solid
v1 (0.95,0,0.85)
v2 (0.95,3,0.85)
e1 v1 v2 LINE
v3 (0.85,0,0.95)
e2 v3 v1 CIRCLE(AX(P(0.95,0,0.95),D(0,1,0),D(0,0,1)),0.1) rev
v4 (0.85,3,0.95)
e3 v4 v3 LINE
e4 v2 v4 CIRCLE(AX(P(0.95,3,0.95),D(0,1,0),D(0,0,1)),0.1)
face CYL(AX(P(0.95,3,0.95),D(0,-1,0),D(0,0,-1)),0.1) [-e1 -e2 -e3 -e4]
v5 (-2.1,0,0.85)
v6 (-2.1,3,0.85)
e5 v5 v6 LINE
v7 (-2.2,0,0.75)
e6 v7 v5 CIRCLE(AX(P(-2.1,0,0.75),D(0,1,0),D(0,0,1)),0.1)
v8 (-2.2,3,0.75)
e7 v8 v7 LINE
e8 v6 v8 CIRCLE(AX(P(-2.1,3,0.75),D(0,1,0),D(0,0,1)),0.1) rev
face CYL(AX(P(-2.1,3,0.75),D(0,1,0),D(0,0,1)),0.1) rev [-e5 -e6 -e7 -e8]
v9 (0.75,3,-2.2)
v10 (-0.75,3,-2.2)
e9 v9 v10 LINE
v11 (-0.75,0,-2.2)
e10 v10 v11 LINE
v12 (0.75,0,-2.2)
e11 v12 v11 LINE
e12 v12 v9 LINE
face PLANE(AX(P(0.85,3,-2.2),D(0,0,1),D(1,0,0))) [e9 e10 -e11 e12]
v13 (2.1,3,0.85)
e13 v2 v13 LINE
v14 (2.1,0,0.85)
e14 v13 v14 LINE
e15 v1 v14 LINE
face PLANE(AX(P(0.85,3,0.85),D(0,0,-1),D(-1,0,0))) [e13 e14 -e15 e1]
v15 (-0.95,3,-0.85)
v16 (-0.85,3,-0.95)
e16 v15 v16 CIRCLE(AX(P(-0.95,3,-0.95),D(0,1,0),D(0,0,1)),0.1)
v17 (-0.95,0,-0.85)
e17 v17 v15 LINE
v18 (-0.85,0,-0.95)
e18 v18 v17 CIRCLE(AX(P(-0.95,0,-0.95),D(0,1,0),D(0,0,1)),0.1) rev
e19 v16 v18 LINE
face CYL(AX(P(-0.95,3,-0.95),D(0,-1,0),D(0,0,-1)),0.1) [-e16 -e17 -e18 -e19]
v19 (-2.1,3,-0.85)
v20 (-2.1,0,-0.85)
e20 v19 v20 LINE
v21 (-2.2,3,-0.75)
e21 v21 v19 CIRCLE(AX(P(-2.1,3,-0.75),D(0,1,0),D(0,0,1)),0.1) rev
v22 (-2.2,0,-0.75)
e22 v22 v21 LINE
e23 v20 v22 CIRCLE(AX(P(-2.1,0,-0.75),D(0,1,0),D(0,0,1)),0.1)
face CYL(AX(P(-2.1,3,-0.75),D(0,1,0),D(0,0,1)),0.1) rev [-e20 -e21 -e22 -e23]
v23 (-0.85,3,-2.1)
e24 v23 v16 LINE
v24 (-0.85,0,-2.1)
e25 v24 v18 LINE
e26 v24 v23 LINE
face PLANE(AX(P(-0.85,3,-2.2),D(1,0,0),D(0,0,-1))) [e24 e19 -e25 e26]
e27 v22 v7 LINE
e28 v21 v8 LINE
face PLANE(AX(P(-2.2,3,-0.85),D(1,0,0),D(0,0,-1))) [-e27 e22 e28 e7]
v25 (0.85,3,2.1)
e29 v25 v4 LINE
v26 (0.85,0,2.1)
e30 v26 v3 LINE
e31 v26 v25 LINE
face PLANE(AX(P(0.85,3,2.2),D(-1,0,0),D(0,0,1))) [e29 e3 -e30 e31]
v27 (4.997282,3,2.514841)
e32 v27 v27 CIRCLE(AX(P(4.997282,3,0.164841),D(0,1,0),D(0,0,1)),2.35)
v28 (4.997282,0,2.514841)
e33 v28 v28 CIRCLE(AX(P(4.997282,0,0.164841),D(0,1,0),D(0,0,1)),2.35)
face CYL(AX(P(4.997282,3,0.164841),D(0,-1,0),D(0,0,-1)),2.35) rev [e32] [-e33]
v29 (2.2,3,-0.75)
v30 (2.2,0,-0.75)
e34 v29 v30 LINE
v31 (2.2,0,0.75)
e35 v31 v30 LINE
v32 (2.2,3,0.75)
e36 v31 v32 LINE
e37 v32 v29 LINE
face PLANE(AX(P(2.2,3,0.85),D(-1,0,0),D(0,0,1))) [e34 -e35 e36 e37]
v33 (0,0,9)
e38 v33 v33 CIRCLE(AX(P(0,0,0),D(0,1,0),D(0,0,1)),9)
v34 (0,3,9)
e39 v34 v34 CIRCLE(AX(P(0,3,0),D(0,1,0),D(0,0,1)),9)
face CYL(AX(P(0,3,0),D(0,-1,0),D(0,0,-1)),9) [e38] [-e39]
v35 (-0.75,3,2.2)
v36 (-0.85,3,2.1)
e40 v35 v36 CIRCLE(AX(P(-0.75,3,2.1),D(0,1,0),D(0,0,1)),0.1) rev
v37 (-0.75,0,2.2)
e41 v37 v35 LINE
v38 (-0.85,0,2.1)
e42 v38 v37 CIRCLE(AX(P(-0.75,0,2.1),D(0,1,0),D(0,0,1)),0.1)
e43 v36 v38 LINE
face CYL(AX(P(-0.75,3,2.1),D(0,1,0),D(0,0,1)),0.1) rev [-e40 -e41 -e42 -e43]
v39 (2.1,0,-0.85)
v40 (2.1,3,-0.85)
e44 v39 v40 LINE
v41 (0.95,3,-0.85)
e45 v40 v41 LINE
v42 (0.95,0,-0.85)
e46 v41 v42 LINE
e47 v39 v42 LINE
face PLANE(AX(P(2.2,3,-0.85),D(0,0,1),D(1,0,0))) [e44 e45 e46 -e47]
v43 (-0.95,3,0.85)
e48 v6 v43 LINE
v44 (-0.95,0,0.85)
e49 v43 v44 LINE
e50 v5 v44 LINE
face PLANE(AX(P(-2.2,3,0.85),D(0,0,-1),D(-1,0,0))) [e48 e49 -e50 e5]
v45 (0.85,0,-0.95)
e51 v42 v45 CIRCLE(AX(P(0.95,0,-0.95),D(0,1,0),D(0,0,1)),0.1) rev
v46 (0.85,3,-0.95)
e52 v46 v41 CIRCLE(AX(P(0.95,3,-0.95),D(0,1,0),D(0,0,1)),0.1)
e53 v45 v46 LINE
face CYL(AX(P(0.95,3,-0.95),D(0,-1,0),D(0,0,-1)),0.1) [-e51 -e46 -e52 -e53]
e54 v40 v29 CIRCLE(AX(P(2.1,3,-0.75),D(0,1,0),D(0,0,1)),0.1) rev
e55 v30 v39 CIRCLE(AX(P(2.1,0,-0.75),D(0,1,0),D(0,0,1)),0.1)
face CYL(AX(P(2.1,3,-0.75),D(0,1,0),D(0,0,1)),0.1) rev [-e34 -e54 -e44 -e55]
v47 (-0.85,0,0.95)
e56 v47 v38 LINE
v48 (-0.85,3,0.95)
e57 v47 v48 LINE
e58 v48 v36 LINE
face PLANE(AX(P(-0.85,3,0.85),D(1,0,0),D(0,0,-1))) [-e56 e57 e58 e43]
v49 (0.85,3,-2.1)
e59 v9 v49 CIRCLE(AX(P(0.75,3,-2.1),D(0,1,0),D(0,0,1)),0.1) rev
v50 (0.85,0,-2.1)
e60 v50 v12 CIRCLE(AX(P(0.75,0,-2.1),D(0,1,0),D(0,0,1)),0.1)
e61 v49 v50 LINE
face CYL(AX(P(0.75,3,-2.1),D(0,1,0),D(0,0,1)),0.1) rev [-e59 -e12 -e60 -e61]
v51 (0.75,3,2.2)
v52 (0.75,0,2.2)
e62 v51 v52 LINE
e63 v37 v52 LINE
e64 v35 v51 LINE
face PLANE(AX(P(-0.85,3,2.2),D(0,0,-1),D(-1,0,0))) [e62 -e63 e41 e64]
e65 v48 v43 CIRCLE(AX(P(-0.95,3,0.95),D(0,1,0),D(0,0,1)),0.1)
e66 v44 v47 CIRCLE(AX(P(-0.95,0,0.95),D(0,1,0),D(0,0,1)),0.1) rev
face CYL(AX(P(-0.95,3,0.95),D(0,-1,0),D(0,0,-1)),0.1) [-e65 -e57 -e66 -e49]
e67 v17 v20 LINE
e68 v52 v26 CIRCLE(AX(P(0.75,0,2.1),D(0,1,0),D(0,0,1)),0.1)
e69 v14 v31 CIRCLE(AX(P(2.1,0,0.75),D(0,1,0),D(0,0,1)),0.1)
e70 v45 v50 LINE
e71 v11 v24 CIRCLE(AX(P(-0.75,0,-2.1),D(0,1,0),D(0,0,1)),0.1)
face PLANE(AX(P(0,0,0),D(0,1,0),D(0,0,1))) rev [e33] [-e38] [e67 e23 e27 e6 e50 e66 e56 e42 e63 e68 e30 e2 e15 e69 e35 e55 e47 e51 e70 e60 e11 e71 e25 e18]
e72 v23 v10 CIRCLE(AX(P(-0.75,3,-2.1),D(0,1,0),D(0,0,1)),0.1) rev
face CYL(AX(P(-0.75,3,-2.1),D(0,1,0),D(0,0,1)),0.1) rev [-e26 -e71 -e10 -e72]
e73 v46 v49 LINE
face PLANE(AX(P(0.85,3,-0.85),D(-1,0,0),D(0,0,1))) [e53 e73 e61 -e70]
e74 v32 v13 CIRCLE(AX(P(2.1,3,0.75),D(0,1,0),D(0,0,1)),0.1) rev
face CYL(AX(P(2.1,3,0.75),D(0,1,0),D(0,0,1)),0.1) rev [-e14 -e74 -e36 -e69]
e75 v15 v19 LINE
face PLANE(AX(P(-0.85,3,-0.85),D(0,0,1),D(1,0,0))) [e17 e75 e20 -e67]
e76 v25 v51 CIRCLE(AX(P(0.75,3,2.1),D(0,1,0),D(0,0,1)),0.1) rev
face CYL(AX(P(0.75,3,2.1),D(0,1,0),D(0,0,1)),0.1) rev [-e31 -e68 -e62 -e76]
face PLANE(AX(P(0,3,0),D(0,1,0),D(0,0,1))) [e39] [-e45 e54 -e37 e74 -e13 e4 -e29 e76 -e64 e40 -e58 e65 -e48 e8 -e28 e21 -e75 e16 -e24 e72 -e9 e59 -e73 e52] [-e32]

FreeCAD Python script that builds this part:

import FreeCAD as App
import Part
import Sketcher

V = App.Vector
Q = App.Units.Quantity


def edges_at(feature, points):
    """Names of the edges that pass closest to the given points."""
    edges = feature.Shape.Edges
    near = lambda p: min(range(len(edges)), key=lambda i: edges[i].distToShape(Part.Vertex(*p))[0])
    return sorted({f"Edge{near(p) + 1}" for p in points})

doc = App.newDocument("Part")
params = doc.addObject("Spreadsheet::Sheet", "Params")
for row, (alias, value) in enumerate([
    ("sketch1_diameter", "18 mm"),
    ("sketch1_diameter2", "4.7 mm"),
    ("sketch1_width", "1.7 mm"),
    ("sketch1_width2", "1.35 mm"),
    ("pad1_length", "3 mm"),
    ("fillet_radius", "0.1 mm"),
], start=1):
    params.set(f"A{row}", alias)
    params.set(f"B{row}", "=" + value)
    params.setAlias(f"B{row}", alias)

body = doc.addObject("PartDesign::Body", "Body")

# Sketch on XZ plane
sketch1 = body.newObject("Sketcher::SketchObject", "Sketch")
sketch1.AttachmentSupport = (doc.getObject("XZ_Plane"), [""])
sketch1.MapMode = "FlatFace"
sketch1.addGeometry([
    Part.Circle(V(0, 0, 0), V(0, 0, 1), 9),  # 0
    Part.Circle(V(5, 0.2, 0), V(0, 0, 1), 2.4),  # 1
    Part.LineSegment(V(-2.2, 0.8, 0), V(-2.2, -0.8, 0)),  # 2
    Part.LineSegment(V(-2.2, -0.8, 0), V(-0.8, -0.8, 0)),  # 3
    Part.LineSegment(V(-0.8, -0.8, 0), V(-0.8, -2.2, 0)),  # 4
    Part.LineSegment(V(-0.8, -2.2, 0), V(0.8, -2.2, 0)),  # 5
    Part.LineSegment(V(0.8, -2.2, 0), V(0.8, -0.8, 0)),  # 6
    Part.LineSegment(V(0.8, -0.8, 0), V(2.2, -0.8, 0)),  # 7
    Part.LineSegment(V(2.2, -0.8, 0), V(2.2, 0.8, 0)),  # 8
    Part.LineSegment(V(2.2, 0.8, 0), V(0.8, 0.8, 0)),  # 9
    Part.LineSegment(V(0.8, 0.8, 0), V(0.8, 2.2, 0)),  # 10
    Part.LineSegment(V(0.8, 2.2, 0), V(-0.8, 2.2, 0)),  # 11
    Part.LineSegment(V(-0.8, 2.2, 0), V(-0.8, 0.8, 0)),  # 12
    Part.LineSegment(V(-0.8, 0.8, 0), V(-2.2, 0.8, 0)),  # 13
], False)
sketch1.addConstraint([
    Sketcher.Constraint("Coincident", 2, 2, 3, 1),
    Sketcher.Constraint("Coincident", 3, 2, 4, 1),
    Sketcher.Constraint("Coincident", 4, 2, 5, 1),
    Sketcher.Constraint("Coincident", 5, 2, 6, 1),
    Sketcher.Constraint("Coincident", 6, 2, 7, 1),
    Sketcher.Constraint("Coincident", 7, 2, 8, 1),
    Sketcher.Constraint("Coincident", 8, 2, 9, 1),
    Sketcher.Constraint("Coincident", 9, 2, 10, 1),
    Sketcher.Constraint("Coincident", 10, 2, 11, 1),
    Sketcher.Constraint("Coincident", 11, 2, 12, 1),
    Sketcher.Constraint("Coincident", 12, 2, 13, 1),
    Sketcher.Constraint("Coincident", 13, 2, 2, 1),
    Sketcher.Constraint("Vertical", 2),
    Sketcher.Constraint("Horizontal", 3),
    Sketcher.Constraint("Vertical", 4),
    Sketcher.Constraint("Horizontal", 5),
    Sketcher.Constraint("Vertical", 6),
    Sketcher.Constraint("Horizontal", 7),
    Sketcher.Constraint("Vertical", 8),
    Sketcher.Constraint("Horizontal", 9),
    Sketcher.Constraint("Vertical", 10),
    Sketcher.Constraint("Horizontal", 11),
    Sketcher.Constraint("Vertical", 12),
    Sketcher.Constraint("Horizontal", 13),
    Sketcher.Constraint("Coincident", 0, 3, -1, 1),
    Sketcher.Constraint("Symmetric", 2, 2, 8, 2, -1, 1),
    Sketcher.Constraint("Symmetric", 4, 2, 10, 2, -1, 1),
    Sketcher.Constraint("Symmetric", 6, 2, 12, 2, -1, 1),
    Sketcher.Constraint("Symmetric", 3, 2, 6, 2, -2),
    Sketcher.Constraint("Equal", 11, 2),
    Sketcher.Constraint("Equal", 13, 4),
    Sketcher.Constraint("Diameter", 0, Q("18 mm")),
    Sketcher.Constraint("Diameter", 1, Q("4.7 mm")),
    Sketcher.Constraint("DistanceX", 5, 1, 5, 2, Q("1.7 mm")),
    Sketcher.Constraint("DistanceX", 3, 1, 3, 2, Q("1.35 mm")),
    Sketcher.Constraint("DistanceX", -1, 1, 1, 3, Q("4.997282 mm")),
    Sketcher.Constraint("DistanceY", -1, 1, 1, 3, Q("0.164841 mm")),
])
sketch1.setExpression("Constraints[31]", "Params.sketch1_diameter")
sketch1.setExpression("Constraints[32]", "Params.sketch1_diameter2")
sketch1.setExpression("Constraints[33]", "Params.sketch1_width")
sketch1.setExpression("Constraints[34]", "Params.sketch1_width2")
pad1 = body.newObject("PartDesign::Pad", "Pad")
pad1.Profile = sketch1
pad1.setExpression("Length", "Params.pad1_length")
pad1.Reversed = True
doc.recompute()

fillet = body.newObject("PartDesign::Fillet", "Fillet")
fillet.Base = (pad1, edges_at(pad1, [
    (-0.85, 1.5, -0.85),
    (-2.2, 1.5, -0.85),
    (-2.2, 1.5, 0.85),
    (-0.85, 1.5, 0.85),
    (-0.85, 1.5, 2.2),
    (0.85, 1.5, 2.2),
    (0.85, 1.5, 0.85),
    (2.2, 1.5, 0.85),
    (2.2, 1.5, -0.85),
    (0.85, 1.5, -0.85),
    (0.85, 1.5, -2.2),
    (-0.85, 1.5, -2.2),
]))
fillet.setExpression("Radius", "Params.fillet_radius")

doc.recompute()
